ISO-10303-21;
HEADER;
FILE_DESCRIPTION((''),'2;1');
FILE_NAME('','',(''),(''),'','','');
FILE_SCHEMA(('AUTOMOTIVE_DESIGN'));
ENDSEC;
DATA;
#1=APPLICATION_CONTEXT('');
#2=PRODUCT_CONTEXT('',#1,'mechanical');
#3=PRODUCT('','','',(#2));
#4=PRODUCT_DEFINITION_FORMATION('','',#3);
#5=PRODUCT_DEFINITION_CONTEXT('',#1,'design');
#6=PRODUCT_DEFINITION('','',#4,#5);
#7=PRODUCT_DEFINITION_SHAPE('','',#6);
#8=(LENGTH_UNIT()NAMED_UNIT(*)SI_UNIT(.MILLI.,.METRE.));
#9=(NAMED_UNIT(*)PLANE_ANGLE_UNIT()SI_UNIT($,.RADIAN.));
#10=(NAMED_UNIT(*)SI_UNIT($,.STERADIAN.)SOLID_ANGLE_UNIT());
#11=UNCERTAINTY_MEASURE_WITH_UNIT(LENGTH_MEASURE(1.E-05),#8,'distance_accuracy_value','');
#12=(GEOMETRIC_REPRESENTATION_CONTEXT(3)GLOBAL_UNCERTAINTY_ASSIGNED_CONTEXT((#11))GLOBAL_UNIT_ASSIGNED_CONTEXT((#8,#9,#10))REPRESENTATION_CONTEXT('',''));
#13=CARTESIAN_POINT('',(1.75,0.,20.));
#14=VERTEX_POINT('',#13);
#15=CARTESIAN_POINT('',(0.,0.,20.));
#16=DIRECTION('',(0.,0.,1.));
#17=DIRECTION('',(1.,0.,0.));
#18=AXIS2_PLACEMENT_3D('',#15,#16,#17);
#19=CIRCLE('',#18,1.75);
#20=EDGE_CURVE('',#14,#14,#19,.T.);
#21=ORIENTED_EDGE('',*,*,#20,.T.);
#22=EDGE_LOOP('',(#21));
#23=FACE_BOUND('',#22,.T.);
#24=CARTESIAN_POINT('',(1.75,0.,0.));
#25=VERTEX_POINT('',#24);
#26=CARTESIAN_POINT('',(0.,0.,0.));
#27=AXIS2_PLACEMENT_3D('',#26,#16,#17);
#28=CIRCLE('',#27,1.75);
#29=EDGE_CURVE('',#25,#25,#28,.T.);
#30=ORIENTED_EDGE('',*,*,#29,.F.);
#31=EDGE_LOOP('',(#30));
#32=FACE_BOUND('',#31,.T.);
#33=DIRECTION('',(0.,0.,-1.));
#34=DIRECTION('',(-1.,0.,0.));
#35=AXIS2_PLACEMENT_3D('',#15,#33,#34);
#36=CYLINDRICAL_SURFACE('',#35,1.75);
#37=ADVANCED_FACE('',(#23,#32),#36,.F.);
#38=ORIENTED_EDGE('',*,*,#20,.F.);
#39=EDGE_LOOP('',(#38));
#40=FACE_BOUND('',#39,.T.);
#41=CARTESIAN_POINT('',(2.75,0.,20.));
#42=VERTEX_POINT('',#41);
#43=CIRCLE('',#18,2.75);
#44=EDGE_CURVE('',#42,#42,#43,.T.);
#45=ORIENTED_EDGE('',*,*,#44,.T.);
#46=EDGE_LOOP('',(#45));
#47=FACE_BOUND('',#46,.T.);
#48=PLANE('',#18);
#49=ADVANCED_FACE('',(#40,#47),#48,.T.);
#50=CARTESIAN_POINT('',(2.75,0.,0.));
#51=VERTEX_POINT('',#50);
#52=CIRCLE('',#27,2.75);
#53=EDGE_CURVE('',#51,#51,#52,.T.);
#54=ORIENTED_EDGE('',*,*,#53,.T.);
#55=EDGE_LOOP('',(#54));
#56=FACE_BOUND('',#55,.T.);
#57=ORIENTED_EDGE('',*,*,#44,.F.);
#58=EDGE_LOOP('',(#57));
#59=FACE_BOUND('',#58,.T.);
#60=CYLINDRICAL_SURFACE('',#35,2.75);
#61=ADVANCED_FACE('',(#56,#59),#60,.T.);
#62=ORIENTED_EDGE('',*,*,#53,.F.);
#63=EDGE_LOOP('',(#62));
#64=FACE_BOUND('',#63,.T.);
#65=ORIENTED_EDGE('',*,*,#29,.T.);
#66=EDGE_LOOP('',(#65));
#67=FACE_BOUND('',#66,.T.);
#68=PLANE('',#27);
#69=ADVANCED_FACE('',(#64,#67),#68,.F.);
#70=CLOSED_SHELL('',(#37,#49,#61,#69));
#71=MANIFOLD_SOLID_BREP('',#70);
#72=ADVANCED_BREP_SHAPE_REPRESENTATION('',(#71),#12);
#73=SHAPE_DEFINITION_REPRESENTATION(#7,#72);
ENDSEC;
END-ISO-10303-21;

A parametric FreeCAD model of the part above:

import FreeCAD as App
import Part
import Sketcher

V = App.Vector

doc = App.newDocument("Part")
body = doc.addObject("PartDesign::Body", "Body")

sketch1 = body.newObject("Sketcher::SketchObject", "Sketch")
sketch1.AttachmentSupport = (doc.getObject("XY_Plane"), [""])
sketch1.MapMode = "FlatFace"
sketch1.addGeometry([
    Part.Circle(V(0, 0, 0), V(0, 0, 1), 2.8),
    Part.Circle(V(0, 0, 0), V(0, 0, 1), 1.8),
], False)
sketch1.addConstraint([
    Sketcher.Constraint("Coincident", 0, 3, -1, 1),
    Sketcher.Constraint("Coincident", 1, 3, -1, 1),
    Sketcher.Constraint("Diameter", 0, 5.5),
    Sketcher.Constraint("Diameter", 1, 3.5),
])
pad1 = body.newObject("PartDesign::Pad", "Pad")
pad1.Profile = sketch1
pad1.Length = 20

doc.recompute()
